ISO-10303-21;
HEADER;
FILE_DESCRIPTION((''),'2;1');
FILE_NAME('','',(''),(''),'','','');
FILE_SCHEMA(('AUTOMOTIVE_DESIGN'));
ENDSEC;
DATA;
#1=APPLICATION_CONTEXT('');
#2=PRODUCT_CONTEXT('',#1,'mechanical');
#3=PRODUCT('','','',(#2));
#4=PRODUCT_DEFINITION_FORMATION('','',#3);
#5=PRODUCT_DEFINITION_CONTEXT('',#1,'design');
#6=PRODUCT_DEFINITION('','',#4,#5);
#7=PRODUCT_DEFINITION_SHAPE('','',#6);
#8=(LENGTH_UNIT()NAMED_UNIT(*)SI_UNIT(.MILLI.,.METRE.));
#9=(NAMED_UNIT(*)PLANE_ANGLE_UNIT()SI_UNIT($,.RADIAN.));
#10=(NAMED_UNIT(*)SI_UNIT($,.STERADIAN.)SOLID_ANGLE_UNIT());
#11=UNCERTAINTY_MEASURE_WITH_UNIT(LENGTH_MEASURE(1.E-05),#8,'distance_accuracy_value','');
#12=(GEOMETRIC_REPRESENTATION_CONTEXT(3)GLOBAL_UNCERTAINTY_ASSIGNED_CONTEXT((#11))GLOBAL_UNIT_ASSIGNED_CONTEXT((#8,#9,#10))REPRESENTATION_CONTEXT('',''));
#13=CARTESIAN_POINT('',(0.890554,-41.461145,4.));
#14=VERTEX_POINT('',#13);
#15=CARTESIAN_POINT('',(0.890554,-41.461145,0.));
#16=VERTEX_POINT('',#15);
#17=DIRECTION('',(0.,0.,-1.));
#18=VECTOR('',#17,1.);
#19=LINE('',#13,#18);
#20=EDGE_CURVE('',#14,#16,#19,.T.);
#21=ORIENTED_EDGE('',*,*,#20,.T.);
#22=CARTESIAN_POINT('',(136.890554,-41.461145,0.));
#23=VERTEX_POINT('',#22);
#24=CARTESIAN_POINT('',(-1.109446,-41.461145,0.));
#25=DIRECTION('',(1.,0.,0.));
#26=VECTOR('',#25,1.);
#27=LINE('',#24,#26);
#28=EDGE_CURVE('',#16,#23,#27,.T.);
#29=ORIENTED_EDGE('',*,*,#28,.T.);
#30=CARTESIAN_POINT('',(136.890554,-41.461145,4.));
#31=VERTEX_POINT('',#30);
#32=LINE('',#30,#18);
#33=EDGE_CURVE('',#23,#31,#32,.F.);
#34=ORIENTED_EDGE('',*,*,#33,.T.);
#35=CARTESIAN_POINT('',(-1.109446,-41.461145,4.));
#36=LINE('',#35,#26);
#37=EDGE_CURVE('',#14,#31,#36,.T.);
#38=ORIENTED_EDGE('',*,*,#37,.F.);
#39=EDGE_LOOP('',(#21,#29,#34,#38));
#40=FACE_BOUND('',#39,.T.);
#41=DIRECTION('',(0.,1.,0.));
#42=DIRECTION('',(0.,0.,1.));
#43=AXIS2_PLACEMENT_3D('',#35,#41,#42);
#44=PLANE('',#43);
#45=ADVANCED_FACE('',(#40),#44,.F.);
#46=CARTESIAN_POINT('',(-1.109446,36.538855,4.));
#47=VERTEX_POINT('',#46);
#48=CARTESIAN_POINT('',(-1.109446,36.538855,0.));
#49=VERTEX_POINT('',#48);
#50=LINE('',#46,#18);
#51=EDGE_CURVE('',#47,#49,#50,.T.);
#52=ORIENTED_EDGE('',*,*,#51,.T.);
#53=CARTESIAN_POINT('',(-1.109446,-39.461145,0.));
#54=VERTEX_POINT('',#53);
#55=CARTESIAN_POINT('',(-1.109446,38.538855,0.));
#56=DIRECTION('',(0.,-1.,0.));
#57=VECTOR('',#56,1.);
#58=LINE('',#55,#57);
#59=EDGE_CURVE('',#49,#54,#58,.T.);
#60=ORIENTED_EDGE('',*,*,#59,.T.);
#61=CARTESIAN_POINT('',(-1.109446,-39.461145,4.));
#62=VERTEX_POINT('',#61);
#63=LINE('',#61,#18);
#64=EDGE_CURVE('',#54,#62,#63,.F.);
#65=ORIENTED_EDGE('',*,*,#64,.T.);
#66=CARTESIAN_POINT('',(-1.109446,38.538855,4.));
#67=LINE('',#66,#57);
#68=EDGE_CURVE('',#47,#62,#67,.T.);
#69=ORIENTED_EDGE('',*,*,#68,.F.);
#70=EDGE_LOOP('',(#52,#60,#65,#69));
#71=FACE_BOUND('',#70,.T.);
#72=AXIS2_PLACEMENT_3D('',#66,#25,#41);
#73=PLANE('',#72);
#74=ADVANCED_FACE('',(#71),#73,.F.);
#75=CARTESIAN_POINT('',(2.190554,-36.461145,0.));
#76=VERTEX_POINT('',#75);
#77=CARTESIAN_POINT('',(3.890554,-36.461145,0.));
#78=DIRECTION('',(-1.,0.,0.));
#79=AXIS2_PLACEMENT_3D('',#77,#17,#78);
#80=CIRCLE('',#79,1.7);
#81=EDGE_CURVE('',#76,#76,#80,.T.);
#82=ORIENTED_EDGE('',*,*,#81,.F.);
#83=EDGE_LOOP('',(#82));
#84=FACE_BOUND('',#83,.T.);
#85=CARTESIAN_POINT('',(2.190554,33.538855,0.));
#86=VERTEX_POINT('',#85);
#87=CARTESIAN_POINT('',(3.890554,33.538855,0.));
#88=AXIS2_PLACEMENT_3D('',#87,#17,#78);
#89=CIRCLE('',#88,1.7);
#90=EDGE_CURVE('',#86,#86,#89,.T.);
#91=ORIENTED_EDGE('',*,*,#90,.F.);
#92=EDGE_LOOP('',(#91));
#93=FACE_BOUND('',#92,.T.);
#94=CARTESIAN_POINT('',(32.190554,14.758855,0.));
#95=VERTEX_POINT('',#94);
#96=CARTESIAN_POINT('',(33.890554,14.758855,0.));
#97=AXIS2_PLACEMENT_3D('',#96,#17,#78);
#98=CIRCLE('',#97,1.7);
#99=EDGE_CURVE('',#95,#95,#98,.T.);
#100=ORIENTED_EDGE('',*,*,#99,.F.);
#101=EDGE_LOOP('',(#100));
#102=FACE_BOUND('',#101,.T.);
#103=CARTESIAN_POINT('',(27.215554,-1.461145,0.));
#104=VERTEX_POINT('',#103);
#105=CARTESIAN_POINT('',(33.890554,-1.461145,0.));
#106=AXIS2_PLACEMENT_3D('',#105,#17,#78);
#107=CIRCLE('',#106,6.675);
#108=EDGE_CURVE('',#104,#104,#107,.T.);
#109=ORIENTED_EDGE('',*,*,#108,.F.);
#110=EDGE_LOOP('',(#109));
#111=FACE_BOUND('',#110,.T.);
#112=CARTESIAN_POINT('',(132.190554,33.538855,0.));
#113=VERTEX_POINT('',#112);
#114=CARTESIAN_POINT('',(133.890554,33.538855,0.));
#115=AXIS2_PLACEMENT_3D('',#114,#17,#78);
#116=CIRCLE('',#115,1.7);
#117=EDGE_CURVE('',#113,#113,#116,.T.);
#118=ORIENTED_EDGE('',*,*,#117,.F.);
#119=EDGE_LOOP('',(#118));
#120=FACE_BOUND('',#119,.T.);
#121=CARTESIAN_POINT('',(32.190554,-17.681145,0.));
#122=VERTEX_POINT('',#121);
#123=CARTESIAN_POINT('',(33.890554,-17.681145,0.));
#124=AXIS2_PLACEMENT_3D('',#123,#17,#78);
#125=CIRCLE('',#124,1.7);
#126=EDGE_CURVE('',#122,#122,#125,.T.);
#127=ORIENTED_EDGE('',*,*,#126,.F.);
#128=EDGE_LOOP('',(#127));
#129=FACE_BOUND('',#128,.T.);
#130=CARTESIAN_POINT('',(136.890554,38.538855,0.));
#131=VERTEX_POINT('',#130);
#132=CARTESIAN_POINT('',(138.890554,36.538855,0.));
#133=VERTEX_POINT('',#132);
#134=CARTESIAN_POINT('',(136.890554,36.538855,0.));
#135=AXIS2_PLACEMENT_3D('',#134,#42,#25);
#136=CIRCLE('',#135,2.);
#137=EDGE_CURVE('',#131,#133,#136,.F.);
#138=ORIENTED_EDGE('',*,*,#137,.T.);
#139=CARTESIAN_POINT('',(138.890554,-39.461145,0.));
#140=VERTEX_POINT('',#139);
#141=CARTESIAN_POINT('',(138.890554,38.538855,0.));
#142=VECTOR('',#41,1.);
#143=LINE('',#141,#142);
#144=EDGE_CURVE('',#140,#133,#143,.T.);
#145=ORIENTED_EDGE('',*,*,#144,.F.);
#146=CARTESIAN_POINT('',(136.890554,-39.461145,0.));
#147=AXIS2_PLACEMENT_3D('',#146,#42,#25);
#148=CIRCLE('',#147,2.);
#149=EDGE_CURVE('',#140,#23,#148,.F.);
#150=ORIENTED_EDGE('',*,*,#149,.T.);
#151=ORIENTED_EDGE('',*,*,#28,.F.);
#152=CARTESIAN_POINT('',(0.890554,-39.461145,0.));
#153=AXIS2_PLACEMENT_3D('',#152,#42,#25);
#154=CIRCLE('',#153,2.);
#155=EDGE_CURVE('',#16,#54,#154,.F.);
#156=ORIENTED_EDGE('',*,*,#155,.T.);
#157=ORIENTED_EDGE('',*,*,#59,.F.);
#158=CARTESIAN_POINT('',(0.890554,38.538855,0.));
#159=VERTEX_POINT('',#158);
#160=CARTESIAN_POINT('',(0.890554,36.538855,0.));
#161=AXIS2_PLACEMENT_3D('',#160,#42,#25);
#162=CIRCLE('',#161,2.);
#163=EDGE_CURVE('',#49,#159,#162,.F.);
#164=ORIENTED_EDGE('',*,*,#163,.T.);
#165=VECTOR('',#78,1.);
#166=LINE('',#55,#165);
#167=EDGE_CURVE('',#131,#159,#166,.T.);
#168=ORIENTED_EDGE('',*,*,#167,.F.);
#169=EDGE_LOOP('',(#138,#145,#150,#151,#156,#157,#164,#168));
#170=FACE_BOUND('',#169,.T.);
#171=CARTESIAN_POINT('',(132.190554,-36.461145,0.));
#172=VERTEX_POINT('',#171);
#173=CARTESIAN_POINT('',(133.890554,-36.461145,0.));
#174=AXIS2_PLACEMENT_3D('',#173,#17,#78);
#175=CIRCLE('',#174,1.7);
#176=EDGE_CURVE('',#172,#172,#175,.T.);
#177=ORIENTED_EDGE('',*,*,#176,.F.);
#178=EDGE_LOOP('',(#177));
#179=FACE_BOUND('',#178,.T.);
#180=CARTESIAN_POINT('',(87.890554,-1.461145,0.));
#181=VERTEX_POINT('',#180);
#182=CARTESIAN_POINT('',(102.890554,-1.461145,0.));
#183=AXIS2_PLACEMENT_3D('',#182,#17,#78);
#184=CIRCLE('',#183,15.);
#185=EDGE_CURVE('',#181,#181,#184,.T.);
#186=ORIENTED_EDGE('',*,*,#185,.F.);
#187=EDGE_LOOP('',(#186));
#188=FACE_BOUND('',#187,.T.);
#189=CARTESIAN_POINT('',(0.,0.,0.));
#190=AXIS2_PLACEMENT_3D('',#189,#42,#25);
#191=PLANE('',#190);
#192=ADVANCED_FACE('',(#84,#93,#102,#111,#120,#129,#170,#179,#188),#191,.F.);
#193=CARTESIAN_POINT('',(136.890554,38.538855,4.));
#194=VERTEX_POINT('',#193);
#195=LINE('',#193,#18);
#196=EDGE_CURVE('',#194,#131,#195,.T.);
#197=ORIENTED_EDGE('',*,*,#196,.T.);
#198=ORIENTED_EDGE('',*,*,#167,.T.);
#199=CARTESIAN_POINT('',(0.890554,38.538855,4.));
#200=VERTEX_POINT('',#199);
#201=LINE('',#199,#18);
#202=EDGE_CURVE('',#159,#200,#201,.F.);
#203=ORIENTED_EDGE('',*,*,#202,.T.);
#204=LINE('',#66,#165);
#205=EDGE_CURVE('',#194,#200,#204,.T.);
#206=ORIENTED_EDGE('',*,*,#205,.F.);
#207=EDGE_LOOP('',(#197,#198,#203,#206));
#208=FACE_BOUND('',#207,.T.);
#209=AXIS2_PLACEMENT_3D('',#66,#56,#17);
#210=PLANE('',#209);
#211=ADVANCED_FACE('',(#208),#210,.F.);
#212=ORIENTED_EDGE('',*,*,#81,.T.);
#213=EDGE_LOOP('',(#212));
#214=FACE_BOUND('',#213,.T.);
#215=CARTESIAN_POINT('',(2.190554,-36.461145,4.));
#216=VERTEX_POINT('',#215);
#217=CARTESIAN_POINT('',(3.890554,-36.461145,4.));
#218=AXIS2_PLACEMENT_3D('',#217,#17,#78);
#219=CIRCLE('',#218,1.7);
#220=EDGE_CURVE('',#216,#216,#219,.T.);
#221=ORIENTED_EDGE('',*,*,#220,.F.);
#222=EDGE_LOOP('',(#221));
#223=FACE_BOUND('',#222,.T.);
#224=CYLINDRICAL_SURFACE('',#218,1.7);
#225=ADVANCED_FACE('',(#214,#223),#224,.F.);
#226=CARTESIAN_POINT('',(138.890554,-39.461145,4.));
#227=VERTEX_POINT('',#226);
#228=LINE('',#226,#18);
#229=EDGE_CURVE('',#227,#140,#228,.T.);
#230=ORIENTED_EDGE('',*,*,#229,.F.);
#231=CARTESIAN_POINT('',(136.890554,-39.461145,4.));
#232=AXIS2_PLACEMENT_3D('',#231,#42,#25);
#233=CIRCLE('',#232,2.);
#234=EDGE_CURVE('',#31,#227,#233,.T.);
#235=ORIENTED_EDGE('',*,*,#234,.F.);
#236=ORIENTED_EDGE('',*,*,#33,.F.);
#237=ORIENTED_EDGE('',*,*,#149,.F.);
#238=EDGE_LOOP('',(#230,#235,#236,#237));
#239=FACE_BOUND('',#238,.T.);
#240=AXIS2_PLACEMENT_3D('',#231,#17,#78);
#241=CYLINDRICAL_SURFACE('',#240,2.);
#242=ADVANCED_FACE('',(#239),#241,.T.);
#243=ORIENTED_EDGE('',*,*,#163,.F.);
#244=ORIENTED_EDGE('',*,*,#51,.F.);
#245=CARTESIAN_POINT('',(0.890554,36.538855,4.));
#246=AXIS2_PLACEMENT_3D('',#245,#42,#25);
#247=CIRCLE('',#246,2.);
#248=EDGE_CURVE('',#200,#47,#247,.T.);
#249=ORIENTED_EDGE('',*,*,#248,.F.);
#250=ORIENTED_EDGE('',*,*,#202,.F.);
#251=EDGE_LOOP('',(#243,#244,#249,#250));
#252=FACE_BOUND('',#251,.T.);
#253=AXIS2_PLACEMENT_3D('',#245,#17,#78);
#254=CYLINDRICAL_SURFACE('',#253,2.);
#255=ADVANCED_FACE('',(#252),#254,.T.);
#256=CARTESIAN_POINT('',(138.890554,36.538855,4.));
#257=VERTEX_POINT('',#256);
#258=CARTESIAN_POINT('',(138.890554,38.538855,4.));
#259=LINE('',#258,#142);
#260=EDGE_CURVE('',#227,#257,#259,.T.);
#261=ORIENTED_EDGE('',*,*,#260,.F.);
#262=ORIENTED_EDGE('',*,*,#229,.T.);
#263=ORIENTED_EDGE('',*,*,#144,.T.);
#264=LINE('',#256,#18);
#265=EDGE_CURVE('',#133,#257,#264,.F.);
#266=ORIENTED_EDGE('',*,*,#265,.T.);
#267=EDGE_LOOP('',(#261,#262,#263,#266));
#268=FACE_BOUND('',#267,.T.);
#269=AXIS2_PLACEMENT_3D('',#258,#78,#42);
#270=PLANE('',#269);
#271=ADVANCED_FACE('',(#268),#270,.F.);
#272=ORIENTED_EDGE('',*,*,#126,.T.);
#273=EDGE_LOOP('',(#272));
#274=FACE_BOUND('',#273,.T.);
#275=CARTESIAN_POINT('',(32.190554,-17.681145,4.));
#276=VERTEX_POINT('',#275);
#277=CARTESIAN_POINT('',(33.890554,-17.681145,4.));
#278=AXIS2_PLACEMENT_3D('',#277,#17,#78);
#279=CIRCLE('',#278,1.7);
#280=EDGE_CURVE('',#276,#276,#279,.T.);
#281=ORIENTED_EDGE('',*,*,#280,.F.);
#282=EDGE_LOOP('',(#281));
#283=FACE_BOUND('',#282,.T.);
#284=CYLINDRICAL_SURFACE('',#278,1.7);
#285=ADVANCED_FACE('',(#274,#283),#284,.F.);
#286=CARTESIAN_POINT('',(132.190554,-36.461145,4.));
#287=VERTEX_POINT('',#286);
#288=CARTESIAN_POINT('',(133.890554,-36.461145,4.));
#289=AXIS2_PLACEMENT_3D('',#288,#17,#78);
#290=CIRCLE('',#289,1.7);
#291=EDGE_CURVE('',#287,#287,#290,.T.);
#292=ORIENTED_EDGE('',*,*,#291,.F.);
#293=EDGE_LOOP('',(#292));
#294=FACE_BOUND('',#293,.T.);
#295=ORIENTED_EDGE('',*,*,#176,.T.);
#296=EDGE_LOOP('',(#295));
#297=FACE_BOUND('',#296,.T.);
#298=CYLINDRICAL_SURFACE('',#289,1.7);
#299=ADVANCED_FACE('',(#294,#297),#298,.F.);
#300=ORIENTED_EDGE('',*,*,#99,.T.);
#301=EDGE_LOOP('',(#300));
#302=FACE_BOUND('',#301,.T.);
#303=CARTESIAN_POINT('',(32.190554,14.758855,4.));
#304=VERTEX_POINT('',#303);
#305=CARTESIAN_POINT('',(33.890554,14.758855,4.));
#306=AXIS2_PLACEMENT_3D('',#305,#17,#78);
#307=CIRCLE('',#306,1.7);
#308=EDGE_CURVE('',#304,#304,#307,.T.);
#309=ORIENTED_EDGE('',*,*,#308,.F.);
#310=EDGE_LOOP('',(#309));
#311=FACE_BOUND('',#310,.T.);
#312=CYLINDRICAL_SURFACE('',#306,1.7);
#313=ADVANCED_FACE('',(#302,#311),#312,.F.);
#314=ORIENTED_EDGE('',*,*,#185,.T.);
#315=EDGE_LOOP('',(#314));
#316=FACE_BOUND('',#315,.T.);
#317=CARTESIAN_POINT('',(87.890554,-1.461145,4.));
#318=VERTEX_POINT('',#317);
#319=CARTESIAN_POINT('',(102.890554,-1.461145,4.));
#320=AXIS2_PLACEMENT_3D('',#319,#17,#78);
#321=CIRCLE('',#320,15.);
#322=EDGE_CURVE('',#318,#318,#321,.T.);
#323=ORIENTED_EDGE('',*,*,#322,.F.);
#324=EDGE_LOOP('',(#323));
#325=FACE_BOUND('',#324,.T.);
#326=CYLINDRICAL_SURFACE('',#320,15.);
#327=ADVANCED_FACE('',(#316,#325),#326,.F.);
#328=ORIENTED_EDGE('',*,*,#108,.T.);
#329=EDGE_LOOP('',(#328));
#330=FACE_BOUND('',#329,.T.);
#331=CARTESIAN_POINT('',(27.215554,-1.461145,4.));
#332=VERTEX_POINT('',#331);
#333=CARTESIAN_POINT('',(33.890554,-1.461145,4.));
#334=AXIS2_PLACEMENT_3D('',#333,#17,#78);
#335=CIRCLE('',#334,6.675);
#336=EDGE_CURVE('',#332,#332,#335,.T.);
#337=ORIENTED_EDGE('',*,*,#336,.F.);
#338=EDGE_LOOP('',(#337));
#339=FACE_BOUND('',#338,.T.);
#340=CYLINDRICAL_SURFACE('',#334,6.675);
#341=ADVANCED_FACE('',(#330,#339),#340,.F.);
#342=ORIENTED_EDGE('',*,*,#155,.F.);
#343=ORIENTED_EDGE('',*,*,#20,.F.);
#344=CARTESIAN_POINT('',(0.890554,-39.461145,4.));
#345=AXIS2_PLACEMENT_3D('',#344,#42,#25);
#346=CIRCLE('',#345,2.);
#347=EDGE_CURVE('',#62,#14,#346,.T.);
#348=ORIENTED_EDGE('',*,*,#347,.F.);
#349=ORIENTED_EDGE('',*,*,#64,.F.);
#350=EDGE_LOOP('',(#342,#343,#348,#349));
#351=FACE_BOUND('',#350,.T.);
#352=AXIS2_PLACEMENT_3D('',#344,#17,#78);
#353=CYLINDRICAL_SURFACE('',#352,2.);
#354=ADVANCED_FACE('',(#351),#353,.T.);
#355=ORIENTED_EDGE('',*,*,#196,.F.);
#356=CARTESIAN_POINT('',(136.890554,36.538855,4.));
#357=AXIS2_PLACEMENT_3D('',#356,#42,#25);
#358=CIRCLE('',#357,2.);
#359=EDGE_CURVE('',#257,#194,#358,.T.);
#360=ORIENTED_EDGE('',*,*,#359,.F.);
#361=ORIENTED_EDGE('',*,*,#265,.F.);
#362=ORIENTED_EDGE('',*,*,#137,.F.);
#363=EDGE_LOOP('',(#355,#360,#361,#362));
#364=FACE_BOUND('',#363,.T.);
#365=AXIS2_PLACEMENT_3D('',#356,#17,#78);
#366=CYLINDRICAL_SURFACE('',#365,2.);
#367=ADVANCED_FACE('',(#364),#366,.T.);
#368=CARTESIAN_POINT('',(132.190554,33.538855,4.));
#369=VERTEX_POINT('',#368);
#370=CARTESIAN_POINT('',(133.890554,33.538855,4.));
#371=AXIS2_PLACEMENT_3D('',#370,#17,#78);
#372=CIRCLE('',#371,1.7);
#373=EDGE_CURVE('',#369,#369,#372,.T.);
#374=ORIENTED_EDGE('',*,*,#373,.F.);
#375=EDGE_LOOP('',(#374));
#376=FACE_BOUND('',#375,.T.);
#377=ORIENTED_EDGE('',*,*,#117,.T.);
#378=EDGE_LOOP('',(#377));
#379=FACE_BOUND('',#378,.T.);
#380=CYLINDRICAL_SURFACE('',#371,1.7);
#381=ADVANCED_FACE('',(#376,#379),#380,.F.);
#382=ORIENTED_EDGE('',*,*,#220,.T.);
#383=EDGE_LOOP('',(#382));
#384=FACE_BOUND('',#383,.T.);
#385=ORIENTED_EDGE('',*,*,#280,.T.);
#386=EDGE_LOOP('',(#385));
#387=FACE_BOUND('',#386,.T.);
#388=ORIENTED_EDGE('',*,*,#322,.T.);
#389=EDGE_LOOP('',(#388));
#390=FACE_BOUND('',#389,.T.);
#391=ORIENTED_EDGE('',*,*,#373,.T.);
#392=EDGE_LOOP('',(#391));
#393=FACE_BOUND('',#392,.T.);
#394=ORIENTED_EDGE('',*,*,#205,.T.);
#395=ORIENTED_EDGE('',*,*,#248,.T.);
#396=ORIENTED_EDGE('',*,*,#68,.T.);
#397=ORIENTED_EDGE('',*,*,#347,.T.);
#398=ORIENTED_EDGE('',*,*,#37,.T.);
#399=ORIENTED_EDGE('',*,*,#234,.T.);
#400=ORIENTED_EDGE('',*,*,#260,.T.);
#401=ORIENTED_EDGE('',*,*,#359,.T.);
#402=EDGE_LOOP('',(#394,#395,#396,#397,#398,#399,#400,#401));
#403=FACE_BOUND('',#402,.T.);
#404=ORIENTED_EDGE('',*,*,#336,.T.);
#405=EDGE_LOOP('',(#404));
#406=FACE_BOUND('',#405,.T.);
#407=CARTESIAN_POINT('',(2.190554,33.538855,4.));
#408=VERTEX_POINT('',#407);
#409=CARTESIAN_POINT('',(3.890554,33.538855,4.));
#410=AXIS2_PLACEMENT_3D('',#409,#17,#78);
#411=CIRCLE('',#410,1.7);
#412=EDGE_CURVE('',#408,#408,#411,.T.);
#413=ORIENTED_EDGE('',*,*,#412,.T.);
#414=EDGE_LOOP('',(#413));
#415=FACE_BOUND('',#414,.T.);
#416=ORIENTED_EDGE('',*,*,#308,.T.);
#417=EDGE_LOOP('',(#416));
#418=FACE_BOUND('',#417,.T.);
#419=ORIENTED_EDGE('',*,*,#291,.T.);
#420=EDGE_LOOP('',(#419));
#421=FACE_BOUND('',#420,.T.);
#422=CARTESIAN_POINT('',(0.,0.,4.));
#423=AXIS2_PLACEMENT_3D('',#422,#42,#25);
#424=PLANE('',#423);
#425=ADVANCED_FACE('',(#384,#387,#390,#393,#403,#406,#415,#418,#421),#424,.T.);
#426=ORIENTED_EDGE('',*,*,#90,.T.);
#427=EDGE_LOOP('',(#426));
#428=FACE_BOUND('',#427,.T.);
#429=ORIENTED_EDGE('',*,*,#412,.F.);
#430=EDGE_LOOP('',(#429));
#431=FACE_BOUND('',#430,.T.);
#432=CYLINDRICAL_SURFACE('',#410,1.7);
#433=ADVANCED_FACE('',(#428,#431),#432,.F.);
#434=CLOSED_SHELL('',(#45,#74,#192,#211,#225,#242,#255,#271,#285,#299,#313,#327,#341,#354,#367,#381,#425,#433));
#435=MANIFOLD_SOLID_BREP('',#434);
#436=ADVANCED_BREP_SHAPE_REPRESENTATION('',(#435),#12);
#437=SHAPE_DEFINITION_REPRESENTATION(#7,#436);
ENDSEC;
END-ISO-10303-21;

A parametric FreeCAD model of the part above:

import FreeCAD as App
import Part
import Sketcher
Q = App.Units.Quantity


def edges_at(feature, points):
    """Names of the edges that pass closest to the given points."""
    edges = feature.Shape.Edges
    near = lambda p: min(range(len(edges)), key=lambda i: edges[i].distToShape(Part.Vertex(*p))[0])
    return sorted({f"Edge{near(p) + 1}" for p in points})


def add_polygon(sketch, points):
    """Adds a closed chain of lines whose ends are joined by coincident constraints."""
    first, n = sketch.GeometryCount, len(points)
    for a, b in zip(points, points[1:] + points[:1]):
        sketch.addGeometry(Part.LineSegment(App.Vector(*a, 0), App.Vector(*b, 0)), False)
    for i in range(n):
        sketch.addConstraint(Sketcher.Constraint("Coincident", first + i, 2, first + (i + 1) % n, 1))

doc = App.newDocument("Part")
body = doc.addObject("PartDesign::Body", "Body")

sketch1 = doc.addObject("Sketcher::SketchObject", "Sketch")
body.addObject(sketch1)
sketch1.AttachmentSupport = (doc.XY_Plane, [""])
sketch1.MapMode = "FlatFace"
add_polygon(sketch1, [(-1, 39), (-1, -41), (139, -41), (139, 39)])
sketch1.addConstraint([
    Sketcher.Constraint("Vertical", 0),
    Sketcher.Constraint("Horizontal", 1),
    Sketcher.Constraint("Vertical", 2),
    Sketcher.Constraint("Horizontal", 3),
    Sketcher.Constraint("DistanceX", 1, 1, 1, 2, Q("140 mm")),
    Sketcher.Constraint("DistanceY", 0, 2, 0, 1, Q("80 mm")),
    Sketcher.Constraint("DistanceX", 0, 2, -1, 1, Q("1.109446 mm")),
    Sketcher.Constraint("DistanceY", 0, 2, -1, 1, Q("41.461145 mm")),
])
pad1 = doc.addObject("PartDesign::Pad", "Pad")
body.addObject(pad1)
pad1.Profile = sketch1
pad1.Length = 4

sketch2 = doc.addObject("Sketcher::SketchObject", "Sketch001")
body.addObject(sketch2)
sketch2.AttachmentSupport = (doc.XY_Plane, [""])
sketch2.MapMode = "FlatFace"
sketch2.addGeometry([
    Part.Circle(App.Vector(33.9, -1.5, 0), App.Vector(0, 0, 1), 6.7),
    Part.Circle(App.Vector(33.9, 14.8, 0), App.Vector(0, 0, 1), 1.7),
    Part.Circle(App.Vector(33.9, -17.7, 0), App.Vector(0, 0, 1), 1.7),
    Part.Circle(App.Vector(3.9, -36.5, 0), App.Vector(0, 0, 1), 1.7),
    Part.Circle(App.Vector(133.9, -36.5, 0), App.Vector(0, 0, 1), 1.7),
    Part.Circle(App.Vector(133.9, 33.5, 0), App.Vector(0, 0, 1), 1.7),
    Part.Circle(App.Vector(3.9, 33.5, 0), App.Vector(0, 0, 1), 1.7),
    Part.Circle(App.Vector(102.9, -1.5, 0), App.Vector(0, 0, 1), 15),
], False)
sketch2.addConstraint([
    Sketcher.Constraint("Equal", 1, 2),
    Sketcher.Constraint("Equal", 2, 3),
    Sketcher.Constraint("Equal", 3, 4),
    Sketcher.Constraint("Equal", 4, 5),
    Sketcher.Constraint("Equal", 5, 6),
    Sketcher.Constraint("Horizontal", 3, 3, 4, 3),
    Sketcher.Constraint("Horizontal", 5, 3, 6, 3),
    Sketcher.Constraint("Horizontal", 0, 3, 7, 3),
    Sketcher.Constraint("Vertical", 0, 3, 1, 3),
    Sketcher.Constraint("Vertical", 1, 3, 2, 3),
    Sketcher.Constraint("Vertical", 4, 3, 5, 3),
    Sketcher.Constraint("Vertical", 3, 3, 6, 3),
    Sketcher.Constraint("Diameter", 7, Q("30 mm")),
    Sketcher.Constraint("Diameter", 1, Q("3.4 mm")),
    Sketcher.Constraint("Diameter", 0, Q("13.35 mm")),
    Sketcher.Constraint("DistanceX", 3, 3, 2, 3, Q("30 mm")),
    Sketcher.Constraint("DistanceY", 3, 3, 0, 3, Q("35 mm")),
    Sketcher.Constraint("DistanceX", 2, 3, 4, 3, Q("100 mm")),
    Sketcher.Constraint("DistanceY", 4, 3, 5, 3, Q("70 mm")),
    Sketcher.Constraint("DistanceX", 7, 3, 4, 3, Q("31 mm")),
    Sketcher.Constraint("DistanceY", 0, 3, 1, 3, Q("16.22 mm")),
    Sketcher.Constraint("DistanceY", 2, 3, 0, 3, Q("16.22 mm")),
    Sketcher.Constraint("DistanceX", -1, 1, 0, 3, Q("33.890554 mm")),
    Sketcher.Constraint("DistanceY", 0, 3, -1, 1, Q("1.461145 mm")),
])
pocket1 = doc.addObject("PartDesign::Pocket", "Pocket")
body.addObject(pocket1)
pocket1.Profile = sketch2
pocket1.Length = 4
pocket1.Reversed = True
doc.recompute()

fillet = doc.addObject("PartDesign::Fillet", "Fillet")
body.addObject(fillet)
fillet.Base = (pocket1, edges_at(pocket1, [
    (-1.109, 38.539, 2),
    (138.891, 38.539, 2),
    (138.891, -41.461, 2),
    (-1.109, -41.461, 2),
]))
fillet.Radius = 2

doc.recompute()
